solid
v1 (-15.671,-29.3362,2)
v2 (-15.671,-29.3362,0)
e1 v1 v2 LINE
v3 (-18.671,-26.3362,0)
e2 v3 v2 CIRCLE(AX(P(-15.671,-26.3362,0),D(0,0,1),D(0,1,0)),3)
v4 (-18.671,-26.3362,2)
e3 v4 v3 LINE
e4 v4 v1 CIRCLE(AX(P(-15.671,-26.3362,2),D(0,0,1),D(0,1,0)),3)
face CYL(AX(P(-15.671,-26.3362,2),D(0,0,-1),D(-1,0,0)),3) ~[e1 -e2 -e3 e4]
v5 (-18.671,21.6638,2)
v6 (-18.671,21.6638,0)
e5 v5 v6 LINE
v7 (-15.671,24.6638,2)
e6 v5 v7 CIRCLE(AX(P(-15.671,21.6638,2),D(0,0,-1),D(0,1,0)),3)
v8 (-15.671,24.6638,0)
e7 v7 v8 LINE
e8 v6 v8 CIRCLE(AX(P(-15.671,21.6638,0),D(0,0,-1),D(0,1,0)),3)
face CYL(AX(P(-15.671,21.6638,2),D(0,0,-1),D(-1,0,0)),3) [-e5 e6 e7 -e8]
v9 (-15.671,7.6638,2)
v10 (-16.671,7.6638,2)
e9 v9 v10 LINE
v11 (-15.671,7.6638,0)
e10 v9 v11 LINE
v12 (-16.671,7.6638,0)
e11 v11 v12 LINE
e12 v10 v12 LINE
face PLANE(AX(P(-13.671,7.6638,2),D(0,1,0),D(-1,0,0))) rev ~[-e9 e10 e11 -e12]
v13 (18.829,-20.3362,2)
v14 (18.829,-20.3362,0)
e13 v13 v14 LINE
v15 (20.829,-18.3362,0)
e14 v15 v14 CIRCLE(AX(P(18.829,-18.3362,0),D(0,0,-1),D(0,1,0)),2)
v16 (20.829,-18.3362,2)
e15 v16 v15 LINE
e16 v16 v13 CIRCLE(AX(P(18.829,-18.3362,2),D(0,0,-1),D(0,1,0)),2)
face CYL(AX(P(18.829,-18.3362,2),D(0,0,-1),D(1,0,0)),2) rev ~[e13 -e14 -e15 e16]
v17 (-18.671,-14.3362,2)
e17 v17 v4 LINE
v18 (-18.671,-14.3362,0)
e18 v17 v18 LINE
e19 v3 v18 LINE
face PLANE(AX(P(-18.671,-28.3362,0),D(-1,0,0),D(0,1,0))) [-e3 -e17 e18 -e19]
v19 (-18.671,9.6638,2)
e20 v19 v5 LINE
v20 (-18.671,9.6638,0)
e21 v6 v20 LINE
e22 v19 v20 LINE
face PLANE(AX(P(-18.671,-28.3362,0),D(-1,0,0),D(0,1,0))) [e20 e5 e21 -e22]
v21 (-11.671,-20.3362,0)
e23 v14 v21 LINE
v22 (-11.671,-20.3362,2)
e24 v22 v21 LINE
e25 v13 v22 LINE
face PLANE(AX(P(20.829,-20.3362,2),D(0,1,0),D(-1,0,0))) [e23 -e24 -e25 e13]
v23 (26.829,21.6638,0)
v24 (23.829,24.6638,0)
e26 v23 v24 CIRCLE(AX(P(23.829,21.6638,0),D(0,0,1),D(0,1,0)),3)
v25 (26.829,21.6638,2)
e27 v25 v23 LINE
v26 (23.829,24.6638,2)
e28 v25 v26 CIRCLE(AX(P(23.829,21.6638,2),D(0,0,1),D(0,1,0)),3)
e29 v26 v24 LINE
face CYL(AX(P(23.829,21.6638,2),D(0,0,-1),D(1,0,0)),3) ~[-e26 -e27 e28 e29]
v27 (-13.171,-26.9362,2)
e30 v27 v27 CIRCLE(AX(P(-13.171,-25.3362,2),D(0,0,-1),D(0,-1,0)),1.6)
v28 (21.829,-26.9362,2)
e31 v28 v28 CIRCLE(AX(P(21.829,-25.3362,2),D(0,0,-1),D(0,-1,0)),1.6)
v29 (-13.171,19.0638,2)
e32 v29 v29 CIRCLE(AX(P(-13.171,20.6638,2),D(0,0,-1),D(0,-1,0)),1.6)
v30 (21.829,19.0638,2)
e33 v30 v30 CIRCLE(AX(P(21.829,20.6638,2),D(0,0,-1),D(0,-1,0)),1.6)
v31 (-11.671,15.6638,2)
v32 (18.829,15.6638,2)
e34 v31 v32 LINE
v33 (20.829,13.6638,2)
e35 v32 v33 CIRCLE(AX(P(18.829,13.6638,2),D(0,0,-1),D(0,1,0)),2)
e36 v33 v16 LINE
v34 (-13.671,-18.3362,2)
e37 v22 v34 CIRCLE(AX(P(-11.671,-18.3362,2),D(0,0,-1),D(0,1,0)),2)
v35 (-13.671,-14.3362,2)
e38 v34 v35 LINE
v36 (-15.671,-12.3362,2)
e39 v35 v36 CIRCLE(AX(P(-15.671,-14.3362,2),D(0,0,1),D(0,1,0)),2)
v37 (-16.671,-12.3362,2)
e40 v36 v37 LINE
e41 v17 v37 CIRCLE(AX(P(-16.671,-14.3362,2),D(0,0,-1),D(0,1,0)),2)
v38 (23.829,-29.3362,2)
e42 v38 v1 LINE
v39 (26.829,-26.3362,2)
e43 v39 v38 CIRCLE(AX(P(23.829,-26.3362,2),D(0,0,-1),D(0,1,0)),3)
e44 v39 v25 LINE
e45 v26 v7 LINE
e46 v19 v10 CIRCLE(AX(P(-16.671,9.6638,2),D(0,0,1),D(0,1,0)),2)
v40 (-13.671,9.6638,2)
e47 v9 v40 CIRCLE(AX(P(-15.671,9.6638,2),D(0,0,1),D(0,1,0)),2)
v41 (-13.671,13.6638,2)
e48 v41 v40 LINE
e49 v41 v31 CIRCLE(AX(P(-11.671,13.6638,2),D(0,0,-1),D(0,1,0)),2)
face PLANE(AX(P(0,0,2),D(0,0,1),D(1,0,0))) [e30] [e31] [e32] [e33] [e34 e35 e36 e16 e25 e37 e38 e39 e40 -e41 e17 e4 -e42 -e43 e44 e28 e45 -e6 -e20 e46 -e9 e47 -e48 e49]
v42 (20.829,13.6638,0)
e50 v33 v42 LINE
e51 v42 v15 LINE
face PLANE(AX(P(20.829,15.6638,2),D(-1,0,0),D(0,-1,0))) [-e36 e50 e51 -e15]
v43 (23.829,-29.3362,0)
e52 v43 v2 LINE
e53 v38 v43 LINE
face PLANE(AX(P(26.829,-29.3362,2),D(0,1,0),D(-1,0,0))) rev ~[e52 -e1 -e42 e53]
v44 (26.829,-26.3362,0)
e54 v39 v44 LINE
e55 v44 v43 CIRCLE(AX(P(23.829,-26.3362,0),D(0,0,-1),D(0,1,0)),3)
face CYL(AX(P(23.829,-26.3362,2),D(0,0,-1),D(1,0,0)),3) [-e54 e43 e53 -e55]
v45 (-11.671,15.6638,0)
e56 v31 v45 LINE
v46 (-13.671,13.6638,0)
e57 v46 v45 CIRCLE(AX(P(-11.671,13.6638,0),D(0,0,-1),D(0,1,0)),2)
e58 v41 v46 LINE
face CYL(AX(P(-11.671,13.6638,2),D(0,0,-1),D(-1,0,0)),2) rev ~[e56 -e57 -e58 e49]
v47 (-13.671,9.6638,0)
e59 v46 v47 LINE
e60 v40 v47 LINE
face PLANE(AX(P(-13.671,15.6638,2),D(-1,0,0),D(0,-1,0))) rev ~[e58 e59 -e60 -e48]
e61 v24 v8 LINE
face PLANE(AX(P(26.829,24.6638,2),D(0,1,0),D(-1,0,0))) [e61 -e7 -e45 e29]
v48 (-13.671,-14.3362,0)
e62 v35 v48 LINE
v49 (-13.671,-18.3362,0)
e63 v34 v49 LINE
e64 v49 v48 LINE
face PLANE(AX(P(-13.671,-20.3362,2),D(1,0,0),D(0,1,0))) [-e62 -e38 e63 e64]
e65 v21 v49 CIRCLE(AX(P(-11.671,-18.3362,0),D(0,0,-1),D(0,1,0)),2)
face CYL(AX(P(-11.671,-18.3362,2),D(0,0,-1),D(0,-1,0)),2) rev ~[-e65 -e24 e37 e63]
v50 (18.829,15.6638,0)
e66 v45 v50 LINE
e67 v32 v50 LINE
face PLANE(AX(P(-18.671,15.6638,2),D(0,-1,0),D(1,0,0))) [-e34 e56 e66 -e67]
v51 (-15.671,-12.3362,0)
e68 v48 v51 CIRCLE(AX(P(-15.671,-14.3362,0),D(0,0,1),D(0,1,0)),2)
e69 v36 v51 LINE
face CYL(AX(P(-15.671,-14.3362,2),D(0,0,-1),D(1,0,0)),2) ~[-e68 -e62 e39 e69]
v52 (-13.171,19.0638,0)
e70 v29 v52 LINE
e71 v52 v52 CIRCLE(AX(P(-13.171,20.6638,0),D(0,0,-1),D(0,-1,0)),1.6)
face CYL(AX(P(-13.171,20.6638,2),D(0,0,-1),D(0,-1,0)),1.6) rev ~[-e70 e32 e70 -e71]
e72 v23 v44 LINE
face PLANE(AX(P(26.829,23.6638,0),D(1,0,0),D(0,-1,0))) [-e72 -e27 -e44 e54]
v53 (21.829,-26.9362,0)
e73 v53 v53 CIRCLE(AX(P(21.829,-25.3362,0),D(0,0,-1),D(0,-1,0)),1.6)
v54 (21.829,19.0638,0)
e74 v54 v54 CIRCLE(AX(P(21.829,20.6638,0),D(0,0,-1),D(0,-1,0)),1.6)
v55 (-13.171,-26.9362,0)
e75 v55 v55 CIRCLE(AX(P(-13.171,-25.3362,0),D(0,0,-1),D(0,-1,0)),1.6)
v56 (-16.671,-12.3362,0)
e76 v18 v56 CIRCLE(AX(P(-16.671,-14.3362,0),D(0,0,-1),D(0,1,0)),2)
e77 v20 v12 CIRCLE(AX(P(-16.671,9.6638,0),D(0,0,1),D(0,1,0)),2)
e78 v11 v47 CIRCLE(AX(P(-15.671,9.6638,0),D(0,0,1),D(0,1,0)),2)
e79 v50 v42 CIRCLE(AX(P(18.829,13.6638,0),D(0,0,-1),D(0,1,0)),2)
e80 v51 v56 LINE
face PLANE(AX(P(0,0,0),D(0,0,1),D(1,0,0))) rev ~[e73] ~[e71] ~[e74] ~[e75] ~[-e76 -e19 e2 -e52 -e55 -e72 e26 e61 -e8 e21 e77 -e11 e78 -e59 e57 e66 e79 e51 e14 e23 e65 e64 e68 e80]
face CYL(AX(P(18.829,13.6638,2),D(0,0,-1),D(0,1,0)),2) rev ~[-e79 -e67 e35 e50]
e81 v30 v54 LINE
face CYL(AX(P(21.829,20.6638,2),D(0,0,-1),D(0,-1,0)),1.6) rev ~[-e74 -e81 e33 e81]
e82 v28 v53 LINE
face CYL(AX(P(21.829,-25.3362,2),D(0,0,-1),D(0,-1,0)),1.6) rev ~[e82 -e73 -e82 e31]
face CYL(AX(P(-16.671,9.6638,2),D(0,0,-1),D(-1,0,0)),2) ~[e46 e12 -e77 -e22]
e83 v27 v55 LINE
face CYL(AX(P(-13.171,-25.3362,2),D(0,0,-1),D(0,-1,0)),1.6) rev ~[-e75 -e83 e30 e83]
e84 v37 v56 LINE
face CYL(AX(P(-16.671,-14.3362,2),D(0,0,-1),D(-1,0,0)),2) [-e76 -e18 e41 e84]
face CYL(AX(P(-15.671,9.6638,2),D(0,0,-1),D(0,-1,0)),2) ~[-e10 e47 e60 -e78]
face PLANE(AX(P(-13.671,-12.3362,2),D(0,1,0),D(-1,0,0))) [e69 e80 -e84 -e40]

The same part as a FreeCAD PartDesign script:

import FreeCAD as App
import Part
import Sketcher
from FreeCAD import Vector
Q = App.Units.Quantity


def edges_at(feature, points):
    """Names of the edges that pass closest to the given points."""
    edges = feature.Shape.Edges
    near = lambda p: min(range(len(edges)), key=lambda i: edges[i].distToShape(Part.Vertex(*p))[0])
    return sorted({f"Edge{near(p) + 1}" for p in points})


def add_polygon(sketch, points):
    """Adds a closed chain of lines whose ends are joined by coincident constraints."""
    first, n = sketch.GeometryCount, len(points)
    for a, b in zip(points, points[1:] + points[:1]):
        sketch.addGeometry(Part.LineSegment(App.Vector(*a, 0), App.Vector(*b, 0)), False)
    for i in range(n):
        sketch.addConstraint(Sketcher.Constraint("Coincident", first + i, 2, first + (i + 1) % n, 1))

doc = App.newDocument("Part")
body = doc.addObject("PartDesign::Body", "Body")

sketch1 = body.newObject("Sketcher::SketchObject", "Sketch")
sketch1.AttachmentSupport = (doc.getObject("XY_Plane"), [""])
sketch1.MapMode = "FlatFace"
add_polygon(sketch1, [(27, 24), (-19, 24), (-19, -28), (27, -28)])
sketch1.addConstraint(Sketcher.Constraint("Horizontal", 0))
sketch1.addConstraint(Sketcher.Constraint("Vertical", 1))
sketch1.addConstraint(Sketcher.Constraint("Horizontal", 2))
sketch1.addConstraint(Sketcher.Constraint("Vertical", 3))
sketch1.addConstraint(Sketcher.Constraint("DistanceY", 1, 2, 1, 1, Q("52 mm")))
sketch1.addConstraint(Sketcher.Constraint("DistanceX", 0, 2, 0, 1, Q("45.5 mm")))
sketch1.addConstraint(Sketcher.Constraint("DistanceX", 0, 2, -1, 1, Q("18.671 mm")))
sketch1.addConstraint(Sketcher.Constraint("DistanceY", -1, 1, 0, 2, Q("23.6638 mm")))
pad1 = body.newObject("PartDesign::Pad", "Pad")
pad1.Profile = sketch1
pad1.Length = 2

sketch2 = body.newObject("Sketcher::SketchObject", "Sketch001")
sketch2.AttachmentSupport = (doc.getObject("XY_Plane"), [""])
sketch2.MapMode = "FlatFace"
sketch2.AttachmentOffset = App.Placement(Vector(0, 0, 2), App.Rotation())
sketch2.addGeometry(Part.Circle(Vector(-13.2, 20.7, 0), Vector(0, 0, 1), 1.6), False)
sketch2.addGeometry(Part.Circle(Vector(21.8, 20.7, 0), Vector(0, 0, 1), 1.6), False)
sketch2.addGeometry(Part.Circle(Vector(21.8, -25.3, 0), Vector(0, 0, 1), 1.6), False)
sketch2.addGeometry(Part.Circle(Vector(-13.2, -25.3, 0), Vector(0, 0, 1), 1.6), False)
sketch2.addConstraint(Sketcher.Constraint("Equal", 0, 1))
sketch2.addConstraint(Sketcher.Constraint("Equal", 1, 2))
sketch2.addConstraint(Sketcher.Constraint("Equal", 2, 3))
sketch2.addConstraint(Sketcher.Constraint("Horizontal", 0, 3, 1, 3))
sketch2.addConstraint(Sketcher.Constraint("Horizontal", 2, 3, 3, 3))
sketch2.addConstraint(Sketcher.Constraint("Vertical", 1, 3, 2, 3))
sketch2.addConstraint(Sketcher.Constraint("Vertical", 0, 3, 3, 3))
sketch2.addConstraint(Sketcher.Constraint("Diameter", 0, Q("3.2 mm")))
sketch2.addConstraint(Sketcher.Constraint("DistanceX", 0, 3, 1, 3, Q("35 mm")))
sketch2.addConstraint(Sketcher.Constraint("DistanceY", 2, 3, 1, 3, Q("46 mm")))
sketch2.addConstraint(Sketcher.Constraint("DistanceX", 0, 3, -1, 1, Q("13.171 mm")))
sketch2.addConstraint(Sketcher.Constraint("DistanceY", -1, 1, 0, 3, Q("20.6638 mm")))
doc.recompute()
hole = body.newObject("PartDesign::Hole", "Hole")
hole.Profile = sketch2
hole.ThreadType = "None"
hole.Diameter = 3.2
hole.DepthType = "Dimension"
hole.Depth = 10
hole.DrillPoint = "Angled"
hole.DrillPointAngle = 118

sketch3 = body.newObject("Sketcher::SketchObject", "Sketch002")
sketch3.AttachmentSupport = (doc.getObject("XY_Plane"), [""])
sketch3.MapMode = "FlatFace"
sketch3.AttachmentOffset = App.Placement(Vector(0, 0, 2), App.Rotation())
add_polygon(sketch3, [(21, 16), (-19, 16), (-19, -20), (21, -20)])
sketch3.addConstraint(Sketcher.Constraint("Horizontal", 0))
sketch3.addConstraint(Sketcher.Constraint("Vertical", 1))
sketch3.addConstraint(Sketcher.Constraint("Horizontal", 2))
sketch3.addConstraint(Sketcher.Constraint("Vertical", 3))
sketch3.addConstraint(Sketcher.Constraint("DistanceY", 1, 2, 1, 1, Q("36 mm")))
sketch3.addConstraint(Sketcher.Constraint("DistanceX", 0, 2, 0, 1, Q("39.5 mm")))
sketch3.addConstraint(Sketcher.Constraint("DistanceX", 0, 2, -1, 1, Q("18.671 mm")))
sketch3.addConstraint(Sketcher.Constraint("DistanceY", -1, 1, 0, 2, Q("15.6638 mm")))
pocket1 = body.newObject("PartDesign::Pocket", "Pocket")
pocket1.Profile = sketch3
pocket1.Length = 2

sketch4 = body.newObject("Sketcher::SketchObject", "Sketch003")
sketch4.AttachmentSupport = (doc.getObject("XY_Plane"), [""])
sketch4.MapMode = "FlatFace"
sketch4.AttachmentOffset = App.Placement(Vector(0, 0, 2), App.Rotation())
add_polygon(sketch4, [(-14, 16), (-19, 16), (-19, 8), (-14, 8)])
add_polygon(sketch4, [(-19, -12), (-19, -20), (-14, -20), (-14, -12)])
sketch4.addConstraint(Sketcher.Constraint("Horizontal", 0))
sketch4.addConstraint(Sketcher.Constraint("Vertical", 1))
sketch4.addConstraint(Sketcher.Constraint("Horizontal", 2))
sketch4.addConstraint(Sketcher.Constraint("Vertical", 3))
sketch4.addConstraint(Sketcher.Constraint("Vertical", 4))
sketch4.addConstraint(Sketcher.Constraint("Horizontal", 5))
sketch4.addConstraint(Sketcher.Constraint("Vertical", 6))
sketch4.addConstraint(Sketcher.Constraint("Horizontal", 7))
sketch4.addConstraint(Sketcher.Constraint("Vertical", 1, 2, 4, 2))
sketch4.addConstraint(Sketcher.Constraint("Vertical", 3, 2, 5, 2))
sketch4.addConstraint(Sketcher.Constraint("Equal", 3, 4))
sketch4.addConstraint(Sketcher.Constraint("DistanceX", 0, 2, 0, 1, Q("5 mm")))
sketch4.addConstraint(Sketcher.Constraint("DistanceY", 1, 2, 1, 1, Q("8 mm")))
sketch4.addConstraint(Sketcher.Constraint("DistanceY", 4, 2, 1, 2, Q("28 mm")))
sketch4.addConstraint(Sketcher.Constraint("DistanceX", 0, 2, -1, 1, Q("18.671 mm")))
sketch4.addConstraint(Sketcher.Constraint("DistanceY", -1, 1, 0, 2, Q("15.6638 mm")))
pad2 = body.newObject("PartDesign::Pad", "Pad001")
pad2.Profile = sketch4
pad2.Length = 2
pad2.Reversed = True
doc.recompute()

fillet = body.newObject("PartDesign::Fillet", "Fillet")
fillet.Base = (pad2, edges_at(pad2, [
    (-13.671, 7.664, 1),
    (-18.671, 7.664, 1),
    (-18.671, -12.336, 1),
    (-13.671, -12.336, 1),
]))
fillet.Radius = 2

sketch5 = body.newObject("Sketcher::SketchObject", "Sketch004")
sketch5.AttachmentSupport = (doc.getObject("XY_Plane"), [""])
sketch5.MapMode = "FlatFace"
sketch5.AttachmentOffset = App.Placement(Vector(0, 0, 2), App.Rotation())
add_polygon(sketch5, [(-18.7, 23.7), (26.8, 23.7), (26.8, 24.7), (-18.7, 24.7)])
add_polygon(sketch5, [(26.8, -29.3), (26.8, -28.3), (-18.7, -28.3), (-18.7, -29.3)])
sketch5.addConstraint(Sketcher.Constraint("Horizontal", 0))
sketch5.addConstraint(Sketcher.Constraint("Vertical", 1))
sketch5.addConstraint(Sketcher.Constraint("Horizontal", 2))
sketch5.addConstraint(Sketcher.Constraint("Vertical", 3))
sketch5.addConstraint(Sketcher.Constraint("Vertical", 4))
sketch5.addConstraint(Sketcher.Constraint("Horizontal", 5))
sketch5.addConstraint(Sketcher.Constraint("Vertical", 6))
sketch5.addConstraint(Sketcher.Constraint("Horizontal", 7))
sketch5.addConstraint(Sketcher.Constraint("Vertical", 1, 2, 4, 2))
sketch5.addConstraint(Sketcher.Constraint("Vertical", 3, 2, 5, 2))
sketch5.addConstraint(Sketcher.Constraint("Equal", 3, 4))
sketch5.addConstraint(Sketcher.Constraint("DistanceY", 1, 1, 1, 2, Q("1 mm")))
sketch5.addConstraint(Sketcher.Constraint("DistanceX", 0, 1, 0, 2, Q("45.5 mm")))
sketch5.addConstraint(Sketcher.Constraint("DistanceY", 4, 2, 0, 2, Q("52 mm")))
sketch5.addConstraint(Sketcher.Constraint("DistanceX", -1, 1, 0, 2, Q("26.829 mm")))
sketch5.addConstraint(Sketcher.Constraint("DistanceY", -1, 1, 0, 2, Q("23.6638 mm")))
pad3 = body.newObject("PartDesign::Pad", "Pad002")
pad3.Profile = sketch5
pad3.Length = 2
pad3.Reversed = True
doc.recompute()

fillet2 = body.newObject("PartDesign::Fillet", "Fillet001")
fillet2.Base = (pad3, edges_at(pad3, [
    (-18.671, 24.664, 1),
    (26.829, 24.664, 1),
    (26.829, -29.336, 1),
    (-18.671, -29.336, 1),
]))
fillet2.Radius = 3
doc.recompute()

fillet3 = body.newObject("PartDesign::Fillet", "Fillet002")
fillet3.Base = (fillet2, edges_at(fillet2, [
    (-13.671, 15.664, 1),
    (20.829, 15.664, 1),
    (20.829, -20.336, 1),
    (-13.671, -20.336, 1),
]))
fillet3.Radius = 2

doc.recompute()
